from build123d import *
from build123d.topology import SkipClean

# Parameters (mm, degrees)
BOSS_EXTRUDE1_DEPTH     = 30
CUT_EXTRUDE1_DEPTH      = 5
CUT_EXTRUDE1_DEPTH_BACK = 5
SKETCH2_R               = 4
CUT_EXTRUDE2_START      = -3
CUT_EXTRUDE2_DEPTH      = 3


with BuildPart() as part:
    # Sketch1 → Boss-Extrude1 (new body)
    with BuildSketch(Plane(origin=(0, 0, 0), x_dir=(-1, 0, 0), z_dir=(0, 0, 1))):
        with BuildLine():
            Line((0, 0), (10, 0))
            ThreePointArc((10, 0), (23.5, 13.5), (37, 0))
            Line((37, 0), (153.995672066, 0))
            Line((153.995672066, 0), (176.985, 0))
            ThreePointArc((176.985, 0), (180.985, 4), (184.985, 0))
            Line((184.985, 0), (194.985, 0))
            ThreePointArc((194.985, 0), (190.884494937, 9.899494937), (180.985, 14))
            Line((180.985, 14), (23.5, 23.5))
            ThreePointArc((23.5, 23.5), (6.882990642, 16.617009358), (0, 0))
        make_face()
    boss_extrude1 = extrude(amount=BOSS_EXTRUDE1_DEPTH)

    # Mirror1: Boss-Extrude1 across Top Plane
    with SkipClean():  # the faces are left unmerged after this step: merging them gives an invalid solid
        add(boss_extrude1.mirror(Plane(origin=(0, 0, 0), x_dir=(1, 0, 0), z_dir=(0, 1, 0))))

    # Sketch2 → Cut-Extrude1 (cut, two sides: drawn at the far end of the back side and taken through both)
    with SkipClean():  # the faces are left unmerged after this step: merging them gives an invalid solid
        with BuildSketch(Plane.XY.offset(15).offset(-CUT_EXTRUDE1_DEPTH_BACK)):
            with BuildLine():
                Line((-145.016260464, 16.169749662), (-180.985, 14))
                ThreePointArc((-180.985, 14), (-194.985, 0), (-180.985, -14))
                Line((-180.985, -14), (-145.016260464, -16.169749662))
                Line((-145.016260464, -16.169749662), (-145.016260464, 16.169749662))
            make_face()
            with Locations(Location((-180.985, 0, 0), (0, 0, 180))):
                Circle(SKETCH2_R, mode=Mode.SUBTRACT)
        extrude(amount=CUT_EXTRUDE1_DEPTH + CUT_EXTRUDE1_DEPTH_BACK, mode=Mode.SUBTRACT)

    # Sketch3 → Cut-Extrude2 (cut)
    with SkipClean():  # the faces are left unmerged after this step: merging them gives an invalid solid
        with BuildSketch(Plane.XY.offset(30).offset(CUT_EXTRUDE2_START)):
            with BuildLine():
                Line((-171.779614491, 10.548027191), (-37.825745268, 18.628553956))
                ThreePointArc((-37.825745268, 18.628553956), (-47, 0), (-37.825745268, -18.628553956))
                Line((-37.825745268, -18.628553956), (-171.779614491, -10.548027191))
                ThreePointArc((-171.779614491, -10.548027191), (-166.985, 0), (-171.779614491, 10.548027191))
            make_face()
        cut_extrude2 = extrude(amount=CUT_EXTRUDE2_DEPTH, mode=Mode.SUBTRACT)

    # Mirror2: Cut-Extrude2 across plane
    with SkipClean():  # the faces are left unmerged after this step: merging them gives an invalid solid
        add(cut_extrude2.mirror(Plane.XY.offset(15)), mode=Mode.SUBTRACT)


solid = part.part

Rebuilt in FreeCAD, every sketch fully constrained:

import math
import FreeCAD as App
import Part
import Sketcher
from FreeCAD import Vector

doc = App.newDocument("Part")
params = doc.addObject("Spreadsheet::Sheet", "Params")
for row, (alias, value) in enumerate([
    ("sketch1_radius", "4 mm"),
    ("sketch1_radius2", "14 mm"),
    ("sketch1_radius3", "13.5 mm"),
    ("pad1_length", "30 mm"),
    ("sketch2_diameter", "8 mm"),
    ("sketch2_radius", "14 mm"),
    ("pocket1_length", "5 mm"),
    ("pocket1_length2", "5 mm"),
    ("sketch3_radius", "14 mm"),
    ("sketch3_radius2", "23.5 mm"),
    ("pocket2_length", "3 mm"),
], start=1):
    params.set(f"A{row}", alias)
    params.set(f"B{row}", "=" + value)
    params.setAlias(f"B{row}", alias)

body = doc.addObject("PartDesign::Body", "Body")

# Sketch on XY plane
sketch1 = body.newObject("Sketcher::SketchObject", "Sketch")
sketch1.AttachmentSupport = (doc.getObject("XY_Plane"), [""])
sketch1.MapMode = "FlatFace"
sketch1.addGeometry([
    Part.LineSegment(Vector(0, 0, 0), Vector(-10, 0, 0)),  # 0
    Part.ArcOfCircle(Part.Circle(Vector(-23.5, 0, 0), Vector(0, 0, 1), 13.5), math.radians(180), math.radians(360)),  # 1
    Part.LineSegment(Vector(-37, 0, 0), Vector(-176.985, 0, 0)),  # 2
    Part.ArcOfCircle(Part.Circle(Vector(-180.985, 0, 0), Vector(0, 0, 1), 4), math.radians(180), math.radians(360)),  # 3
    Part.LineSegment(Vector(-184.985, 0, 0), Vector(-194.985, 0, 0)),  # 4
    Part.ArcOfCircle(Part.Circle(Vector(-180.985, 0, 0), Vector(0, 0, 1), 14), math.radians(180), math.radians(270)),  # 5
    Part.LineSegment(Vector(-180.985, -14, 0), Vector(-23.5, -23.5, 0)),  # 6
    Part.ArcOfCircle(Part.Circle(Vector(-23.5, 0, 0), Vector(0, 0, 1), 23.5), math.radians(-90), math.radians(0)),  # 7
], False)
sketch1.addConstraint([
    Sketcher.Constraint("Coincident", 0, 2, 1, 2),
    Sketcher.Constraint("Coincident", 1, 1, 2, 1),
    Sketcher.Constraint("Coincident", 2, 2, 3, 2),
    Sketcher.Constraint("Coincident", 3, 1, 4, 1),
    Sketcher.Constraint("Coincident", 4, 2, 5, 1),
    Sketcher.Constraint("Coincident", 5, 2, 6, 1),
    Sketcher.Constraint("Coincident", 6, 2, 7, 1),
    Sketcher.Constraint("Coincident", 7, 2, 0, 1),
    Sketcher.Constraint("Horizontal", 0),
    Sketcher.Constraint("Horizontal", 2),
    Sketcher.Constraint("Horizontal", 4),
    Sketcher.Constraint("Coincident", 7, 2, -1, 1),
    Sketcher.Constraint("Coincident", 5, 3, 3, 3),
    Sketcher.Constraint("Coincident", 7, 3, 1, 3),
    Sketcher.Constraint("PointOnObject", 1, 3, -1),
    Sketcher.Constraint("PointOnObject", 3, 3, -1),
    Sketcher.Constraint("PointOnObject", 1, 1, -1),
    Sketcher.Constraint("PointOnObject", 3, 1, -1),
    Sketcher.Constraint("Vertical", 3, 3, 5, 2),
    Sketcher.Constraint("Vertical", 7, 3, 6, 2),
    Sketcher.Constraint("Equal", 0, 4),
    Sketcher.Constraint("Radius", 3, 4.0),
    Sketcher.Constraint("Radius", 5, 14.0),
    Sketcher.Constraint("Radius", 1, 13.5),
    Sketcher.Constraint("DistanceX", 2, 2, 2, 1, 139.985),
])
sketch1.setExpression("Constraints[21]", "Params.sketch1_radius")
sketch1.setExpression("Constraints[22]", "Params.sketch1_radius2")
sketch1.setExpression("Constraints[23]", "Params.sketch1_radius3")
pad1 = body.newObject("PartDesign::Pad", "Pad")
pad1.Profile = sketch1
pad1.setExpression("Length", "Params.pad1_length")
doc.recompute()

mirrored = body.newObject("PartDesign::Mirrored", "Mirrored")
mirrored.Originals = [pad1]
mirrored.MirrorPlane = (doc.getObject("XZ_Plane"), [""])
body.Tip = mirrored

# Sketch on XY plane
sketch2 = body.newObject("Sketcher::SketchObject", "Sketch001")
sketch2.AttachmentSupport = (doc.getObject("XY_Plane"), [""])
sketch2.MapMode = "FlatFace"
sketch2.AttachmentOffset = App.Placement(Vector(0, 0, 15), App.Rotation())
sketch2.addGeometry([
    Part.LineSegment(Vector(-145.01626, 16.16975, 0), Vector(-180.985, 14, 0)),  # 0
    Part.ArcOfCircle(Part.Circle(Vector(-180.985, 0, 0), Vector(0, 0, 1), 14), math.radians(90), math.radians(270)),  # 1
    Part.LineSegment(Vector(-180.985, -14, 0), Vector(-145.01626, -16.16975, 0)),  # 2
    Part.LineSegment(Vector(-145.01626, -16.16975, 0), Vector(-145.01626, 16.16975, 0)),  # 3
    Part.Circle(Vector(-180.985, 0, 0), Vector(0, 0, 1), 4),  # 4
], False)
sketch2.addConstraint([
    Sketcher.Constraint("Coincident", 0, 2, 1, 1),
    Sketcher.Constraint("Coincident", 1, 2, 2, 1),
    Sketcher.Constraint("Coincident", 2, 2, 3, 1),
    Sketcher.Constraint("Coincident", 3, 2, 0, 1),
    Sketcher.Constraint("Vertical", 3),
    Sketcher.Constraint("Coincident", 4, 3, 1, 3),
    Sketcher.Constraint("Symmetric", 0, 2, 1, 2, -1),
    Sketcher.Constraint("Vertical", 4, 3, 0, 2),
    Sketcher.Constraint("Equal", 0, 2),
    Sketcher.Constraint("Diameter", 4, 8.0),
    Sketcher.Constraint("Radius", 1, 14.0),
    Sketcher.Constraint("DistanceY", 3, 1, 3, 2, 32.339499),
    Sketcher.Constraint("DistanceX", 1, 3, -1, 1, 180.985),
    Sketcher.Constraint("DistanceX", 2, 2, -1, 1, 145.01626),
])
sketch2.setExpression("Constraints[9]", "Params.sketch2_diameter")
sketch2.setExpression("Constraints[10]", "Params.sketch2_radius")
pocket1 = body.newObject("PartDesign::Pocket", "Pocket")
pocket1.Profile = sketch2
pocket1.Type = "TwoLengths"
pocket1.setExpression("Length", "Params.pocket1_length")
pocket1.setExpression("Length2", "Params.pocket1_length2")
pocket1.Reversed = True

# Sketch on XY plane
sketch3 = body.newObject("Sketcher::SketchObject", "Sketch002")
sketch3.AttachmentSupport = (doc.getObject("XY_Plane"), [""])
sketch3.MapMode = "FlatFace"
sketch3.AttachmentOffset = App.Placement(Vector(0, 0, 27), App.Rotation())
sketch3.addGeometry([
    Part.LineSegment(Vector(-37.825745, 18.628554, 0), Vector(-171.779614, 10.548027, 0)),
    Part.ArcOfCircle(Part.Circle(Vector(-180.985, 0, 0), Vector(0, 0, 1), 14), math.radians(-48.88842), math.radians(48.88842)),
    Part.LineSegment(Vector(-171.779614, -10.548027, 0), Vector(-37.825745, -18.628554, 0)),
    Part.ArcOfCircle(Part.Circle(Vector(-23.5, 0, 0), Vector(0, 0, 1), 23.5), math.radians(127.561033), math.radians(232.438967)),
], False)
sketch3.addConstraint([
    Sketcher.Constraint("Coincident", 0, 2, 1, 2),
    Sketcher.Constraint("Coincident", 1, 1, 2, 1),
    Sketcher.Constraint("Coincident", 2, 2, 3, 2),
    Sketcher.Constraint("Coincident", 3, 1, 0, 1),
    Sketcher.Constraint("Symmetric", 0, 2, 1, 1, -1),
    Sketcher.Constraint("Symmetric", 2, 2, 3, 1, -1),
    Sketcher.Constraint("Radius", 1, 14.0),
    Sketcher.Constraint("Radius", 3, 23.5),
    Sketcher.Constraint("DistanceX", 3, 3, -1, 1, 23.5),
    Sketcher.Constraint("DistanceX", 1, 3, -1, 1, 180.985),
    Sketcher.Constraint("Distance", 0, 134.19737),
    Sketcher.Constraint("DistanceX", 1, 1, 2, 2, 133.953869),
])
sketch3.setExpression("Constraints[6]", "Params.sketch3_radius")
sketch3.setExpression("Constraints[7]", "Params.sketch3_radius2")
pocket2 = body.newObject("PartDesign::Pocket", "Pocket001")
pocket2.Profile = sketch3
pocket2.setExpression("Length", "Params.pocket2_length")
pocket2.Reversed = True
doc.recompute()

datumplane = body.newObject("PartDesign::Plane", "DatumPlane")
datumplane.AttachmentSupport = (doc.getObject("XY_Plane"), [""])
datumplane.MapMode = "FlatFace"
datumplane.AttachmentOffset = App.Placement(Vector(0, 0, 15), App.Rotation())
mirrored2 = body.newObject("PartDesign::Mirrored", "Mirrored001")
mirrored2.Originals = [pocket2]
mirrored2.MirrorPlane = (datumplane, [""])
body.Tip = mirrored2

doc.recompute()
